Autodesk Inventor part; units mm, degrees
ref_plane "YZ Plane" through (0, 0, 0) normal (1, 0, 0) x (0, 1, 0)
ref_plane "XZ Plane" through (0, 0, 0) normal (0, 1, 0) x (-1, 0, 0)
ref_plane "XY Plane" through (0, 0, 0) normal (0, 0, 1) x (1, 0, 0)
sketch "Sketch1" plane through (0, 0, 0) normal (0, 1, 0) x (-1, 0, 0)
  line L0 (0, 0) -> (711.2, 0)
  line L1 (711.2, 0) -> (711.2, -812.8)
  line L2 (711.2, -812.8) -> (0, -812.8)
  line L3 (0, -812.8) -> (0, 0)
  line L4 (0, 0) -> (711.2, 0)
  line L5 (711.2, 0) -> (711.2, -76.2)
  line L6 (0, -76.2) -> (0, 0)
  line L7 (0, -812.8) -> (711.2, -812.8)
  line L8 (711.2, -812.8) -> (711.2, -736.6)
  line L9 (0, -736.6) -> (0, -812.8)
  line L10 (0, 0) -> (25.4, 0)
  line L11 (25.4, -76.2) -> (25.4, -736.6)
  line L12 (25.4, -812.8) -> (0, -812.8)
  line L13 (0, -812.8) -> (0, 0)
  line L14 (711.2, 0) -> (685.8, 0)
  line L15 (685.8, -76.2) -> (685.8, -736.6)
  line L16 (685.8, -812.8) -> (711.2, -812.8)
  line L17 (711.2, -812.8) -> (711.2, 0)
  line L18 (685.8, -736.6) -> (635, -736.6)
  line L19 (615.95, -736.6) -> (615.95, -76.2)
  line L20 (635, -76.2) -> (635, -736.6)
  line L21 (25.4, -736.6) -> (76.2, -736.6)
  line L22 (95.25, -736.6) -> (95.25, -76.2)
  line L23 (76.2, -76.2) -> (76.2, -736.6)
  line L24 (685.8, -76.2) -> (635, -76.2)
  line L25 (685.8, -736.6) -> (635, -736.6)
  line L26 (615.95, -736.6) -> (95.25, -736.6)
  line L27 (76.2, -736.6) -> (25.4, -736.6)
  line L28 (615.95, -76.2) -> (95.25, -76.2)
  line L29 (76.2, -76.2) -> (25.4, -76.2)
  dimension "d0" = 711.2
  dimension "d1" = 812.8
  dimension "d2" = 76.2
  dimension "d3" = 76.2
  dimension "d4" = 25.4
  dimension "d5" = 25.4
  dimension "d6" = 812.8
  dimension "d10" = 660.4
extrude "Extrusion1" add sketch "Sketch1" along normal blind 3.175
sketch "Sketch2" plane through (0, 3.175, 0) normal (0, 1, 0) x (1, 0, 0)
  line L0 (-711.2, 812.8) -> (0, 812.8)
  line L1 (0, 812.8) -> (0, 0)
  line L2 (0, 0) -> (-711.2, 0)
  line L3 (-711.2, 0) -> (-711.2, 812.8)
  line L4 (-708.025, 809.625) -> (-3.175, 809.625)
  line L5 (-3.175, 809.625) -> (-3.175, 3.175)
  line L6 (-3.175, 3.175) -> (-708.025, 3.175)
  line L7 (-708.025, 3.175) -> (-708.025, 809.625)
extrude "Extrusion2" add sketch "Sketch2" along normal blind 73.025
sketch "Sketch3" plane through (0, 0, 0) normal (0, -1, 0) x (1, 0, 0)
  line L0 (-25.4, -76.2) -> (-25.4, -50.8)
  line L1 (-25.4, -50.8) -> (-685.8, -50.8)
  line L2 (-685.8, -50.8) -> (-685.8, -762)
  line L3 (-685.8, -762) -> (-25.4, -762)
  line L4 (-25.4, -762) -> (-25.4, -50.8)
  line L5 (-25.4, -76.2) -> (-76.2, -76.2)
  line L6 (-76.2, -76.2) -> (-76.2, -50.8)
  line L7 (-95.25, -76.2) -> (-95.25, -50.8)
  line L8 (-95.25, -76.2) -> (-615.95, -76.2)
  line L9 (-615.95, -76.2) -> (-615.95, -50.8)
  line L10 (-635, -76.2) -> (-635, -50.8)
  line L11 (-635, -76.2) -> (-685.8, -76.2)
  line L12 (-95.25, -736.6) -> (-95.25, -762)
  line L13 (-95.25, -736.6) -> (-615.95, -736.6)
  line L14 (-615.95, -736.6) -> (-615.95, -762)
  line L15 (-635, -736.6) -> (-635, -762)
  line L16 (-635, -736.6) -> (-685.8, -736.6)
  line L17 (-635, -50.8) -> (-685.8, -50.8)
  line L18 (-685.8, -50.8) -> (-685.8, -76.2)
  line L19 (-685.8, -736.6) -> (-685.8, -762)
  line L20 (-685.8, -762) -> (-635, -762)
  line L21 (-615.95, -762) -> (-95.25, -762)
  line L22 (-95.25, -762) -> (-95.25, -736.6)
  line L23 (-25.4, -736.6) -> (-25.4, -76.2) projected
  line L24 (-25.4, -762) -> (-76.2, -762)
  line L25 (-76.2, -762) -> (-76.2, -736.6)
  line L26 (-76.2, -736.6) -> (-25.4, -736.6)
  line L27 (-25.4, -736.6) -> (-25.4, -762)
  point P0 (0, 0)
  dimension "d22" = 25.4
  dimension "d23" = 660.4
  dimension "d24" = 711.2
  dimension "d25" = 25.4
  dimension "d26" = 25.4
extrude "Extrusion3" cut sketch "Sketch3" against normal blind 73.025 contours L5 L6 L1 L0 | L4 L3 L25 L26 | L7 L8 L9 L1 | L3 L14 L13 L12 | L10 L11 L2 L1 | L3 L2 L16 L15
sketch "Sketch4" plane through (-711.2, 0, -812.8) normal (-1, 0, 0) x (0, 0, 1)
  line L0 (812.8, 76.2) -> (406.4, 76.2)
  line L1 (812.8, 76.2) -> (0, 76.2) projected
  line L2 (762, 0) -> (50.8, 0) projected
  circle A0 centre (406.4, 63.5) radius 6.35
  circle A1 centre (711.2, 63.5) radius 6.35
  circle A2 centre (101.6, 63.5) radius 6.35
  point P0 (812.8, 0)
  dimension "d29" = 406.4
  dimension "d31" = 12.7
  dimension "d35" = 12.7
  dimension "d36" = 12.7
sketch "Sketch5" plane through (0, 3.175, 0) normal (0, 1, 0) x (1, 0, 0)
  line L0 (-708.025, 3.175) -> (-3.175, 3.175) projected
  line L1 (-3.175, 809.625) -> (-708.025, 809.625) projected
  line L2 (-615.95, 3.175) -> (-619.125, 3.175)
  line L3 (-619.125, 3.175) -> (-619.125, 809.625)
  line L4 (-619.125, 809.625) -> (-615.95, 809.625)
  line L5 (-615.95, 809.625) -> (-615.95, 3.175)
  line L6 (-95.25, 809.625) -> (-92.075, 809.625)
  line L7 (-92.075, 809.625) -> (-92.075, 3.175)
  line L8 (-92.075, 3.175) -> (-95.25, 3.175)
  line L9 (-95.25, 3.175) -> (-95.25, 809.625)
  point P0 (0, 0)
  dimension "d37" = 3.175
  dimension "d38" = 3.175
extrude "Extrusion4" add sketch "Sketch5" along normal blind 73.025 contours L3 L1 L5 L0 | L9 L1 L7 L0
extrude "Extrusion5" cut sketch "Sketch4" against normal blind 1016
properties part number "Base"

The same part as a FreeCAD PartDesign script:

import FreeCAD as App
import Part
import Sketcher

V = App.Vector
Q = App.Units.Quantity


def add_polygon(sketch, points):
    """Adds a closed chain of lines whose ends are joined by coincident constraints."""
    first, n = sketch.GeometryCount, len(points)
    for a, b in zip(points, points[1:] + points[:1]):
        sketch.addGeometry(Part.LineSegment(App.Vector(*a, 0), App.Vector(*b, 0)), False)
    for i in range(n):
        sketch.addConstraint(Sketcher.Constraint("Coincident", first + i, 2, first + (i + 1) % n, 1))

doc = App.newDocument("Part")
body = doc.addObject("PartDesign::Body", "Body")

# Sketch on XZ plane
sketch1 = doc.addObject("Sketcher::SketchObject", "Sketch")
body.addObject(sketch1)
sketch1.AttachmentSupport = (doc.XZ_Plane, [""])
sketch1.MapMode = "FlatFace"
add_polygon(sketch1, [(-711, 0), (0, 0), (0, -813), (-711, -813)])  # lines 0-3
add_polygon(sketch1, [(-25, -737), (-25, -76), (-76, -76), (-76, -737)])  # lines 4-7
add_polygon(sketch1, [(-616, -76), (-616, -737), (-95, -737), (-95, -76)])  # lines 8-11
add_polygon(sketch1, [(-635, -76), (-686, -76), (-686, -737), (-635, -737)])  # lines 12-15
sketch1.addConstraint([
    Sketcher.Constraint("Horizontal", 0),
    Sketcher.Constraint("Vertical", 1),
    Sketcher.Constraint("Horizontal", 2),
    Sketcher.Constraint("Vertical", 3),
    Sketcher.Constraint("Vertical", 4),
    Sketcher.Constraint("Horizontal", 5),
    Sketcher.Constraint("Vertical", 6),
    Sketcher.Constraint("Horizontal", 7),
    Sketcher.Constraint("Vertical", 8),
    Sketcher.Constraint("Horizontal", 9),
    Sketcher.Constraint("Vertical", 10),
    Sketcher.Constraint("Horizontal", 11),
    Sketcher.Constraint("Horizontal", 12),
    Sketcher.Constraint("Vertical", 13),
    Sketcher.Constraint("Horizontal", 14),
    Sketcher.Constraint("Vertical", 15),
    Sketcher.Constraint("Coincident", 0, 2, -1, 1),
    Sketcher.Constraint("Horizontal", 7, 2, 8, 2),
    Sketcher.Constraint("Horizontal", 5, 2, 10, 2),
    Sketcher.Constraint("Horizontal", 11, 2, 12, 2),
    Sketcher.Constraint("Horizontal", 9, 2, 13, 2),
    Sketcher.Constraint("Equal", 7, 12),
    Sketcher.Constraint("DistanceX", 0, 1, 0, 2, Q("28 in")),
    Sketcher.Constraint("DistanceY", 1, 2, 1, 1, Q("32 in")),
    Sketcher.Constraint("DistanceY", 4, 1, 4, 2, Q("26 in")),
    Sketcher.Constraint("DistanceX", 4, 2, -1, 1, Q("1 in")),
    Sketcher.Constraint("DistanceY", 4, 2, -1, 1, Q("3 in")),
    Sketcher.Constraint("DistanceX", 5, 2, -1, 1, Q("3 in")),
    Sketcher.Constraint("DistanceX", 3, 2, 12, 2, Q("1 in")),
    Sketcher.Constraint("DistanceX", 9, 1, 9, 2, Q("20.5 in")),
    Sketcher.Constraint("DistanceX", 8, 2, -1, 1, Q("24.25 in")),
])
pad1 = doc.addObject("PartDesign::Pad", "Pad")
body.addObject(pad1)
pad1.Profile = sketch1
pad1.Length = Q("0.125 in")
pad1.Reversed = True

# Sketch on XZ plane
sketch2 = doc.addObject("Sketcher::SketchObject", "Sketch001")
body.addObject(sketch2)
sketch2.AttachmentSupport = (doc.XZ_Plane, [""])
sketch2.MapMode = "FlatFace"
sketch2.AttachmentOffset = App.Placement(V(0, 0, -0.125 * 25.4), App.Rotation())
add_polygon(sketch2, [(0, -813), (-711, -813), (-711, 0), (0, 0)])  # lines 0-3
add_polygon(sketch2, [(-708, -3), (-708, -810), (-3, -810), (-3, -3)])  # lines 4-7
sketch2.addConstraint([
    Sketcher.Constraint("Horizontal", 0),
    Sketcher.Constraint("Vertical", 1),
    Sketcher.Constraint("Horizontal", 2),
    Sketcher.Constraint("Vertical", 3),
    Sketcher.Constraint("Vertical", 4),
    Sketcher.Constraint("Horizontal", 5),
    Sketcher.Constraint("Vertical", 6),
    Sketcher.Constraint("Horizontal", 7),
    Sketcher.Constraint("Coincident", 2, 2, -1, 1),
    Sketcher.Constraint("DistanceX", 0, 2, 0, 1, Q("28 in")),
    Sketcher.Constraint("DistanceY", 1, 1, 1, 2, Q("32 in")),
    Sketcher.Constraint("DistanceX", 5, 1, 5, 2, Q("27.75 in")),
    Sketcher.Constraint("DistanceY", 4, 2, 4, 1, Q("31.75 in")),
    Sketcher.Constraint("DistanceX", 4, 2, -1, 1, Q("27.875 in")),
    Sketcher.Constraint("DistanceY", 4, 2, -1, 1, Q("31.875 in")),
])
pad2 = doc.addObject("PartDesign::Pad", "Pad001")
body.addObject(pad2)
pad2.Profile = sketch2
pad2.Length = Q("2.875 in")
pad2.Reversed = True

# Sketch on XZ plane
sketch3 = doc.addObject("Sketcher::SketchObject", "Sketch002")
body.addObject(sketch3)
sketch3.AttachmentSupport = (doc.XZ_Plane, [""])
sketch3.MapMode = "FlatFace"
add_polygon(sketch3, [(-76, -76), (-25, -76), (-25, -51), (-76, -51)])  # lines 0-3
add_polygon(sketch3, [(-25, -762), (-25, -737), (-76, -737), (-76, -762)])  # lines 4-7
add_polygon(sketch3, [(-95, -76), (-95, -51), (-616, -51), (-616, -76)])  # lines 8-11
add_polygon(sketch3, [(-616, -762), (-95, -762), (-95, -737), (-616, -737)])  # lines 12-15
add_polygon(sketch3, [(-635, -76), (-635, -51), (-686, -51), (-686, -76)])  # lines 16-19
add_polygon(sketch3, [(-686, -762), (-635, -762), (-635, -737), (-686, -737)])  # lines 20-23
sketch3.addConstraint([
    Sketcher.Constraint("Horizontal", 0),
    Sketcher.Constraint("Vertical", 1),
    Sketcher.Constraint("Horizontal", 2),
    Sketcher.Constraint("Vertical", 3),
    Sketcher.Constraint("Vertical", 4),
    Sketcher.Constraint("Horizontal", 5),
    Sketcher.Constraint("Vertical", 6),
    Sketcher.Constraint("Horizontal", 7),
    Sketcher.Constraint("Vertical", 8),
    Sketcher.Constraint("Horizontal", 9),
    Sketcher.Constraint("Vertical", 10),
    Sketcher.Constraint("Horizontal", 11),
    Sketcher.Constraint("Horizontal", 12),
    Sketcher.Constraint("Vertical", 13),
    Sketcher.Constraint("Horizontal", 14),
    Sketcher.Constraint("Vertical", 15),
    Sketcher.Constraint("Vertical", 16),
    Sketcher.Constraint("Horizontal", 17),
    Sketcher.Constraint("Vertical", 18),
    Sketcher.Constraint("Horizontal", 19),
    Sketcher.Constraint("Horizontal", 20),
    Sketcher.Constraint("Vertical", 21),
    Sketcher.Constraint("Horizontal", 22),
    Sketcher.Constraint("Vertical", 23),
    Sketcher.Constraint("Horizontal", 2, 2, 8, 2),
    Sketcher.Constraint("Horizontal", 3, 2, 10, 2),
    Sketcher.Constraint("Horizontal", 7, 2, 12, 2),
    Sketcher.Constraint("Horizontal", 5, 2, 13, 2),
    Sketcher.Constraint("Horizontal", 9, 2, 16, 2),
    Sketcher.Constraint("Horizontal", 11, 2, 18, 2),
    Sketcher.Constraint("Horizontal", 15, 2, 20, 2),
    Sketcher.Constraint("Horizontal", 14, 2, 21, 2),
    Sketcher.Constraint("Vertical", 1, 2, 4, 2),
    Sketcher.Constraint("Vertical", 3, 2, 5, 2),
    Sketcher.Constraint("Vertical", 11, 2, 12, 2),
    Sketcher.Constraint("Vertical", 10, 2, 14, 2),
    Sketcher.Constraint("Vertical", 19, 2, 20, 2),
    Sketcher.Constraint("Vertical", 18, 2, 22, 2),
    Sketcher.Constraint("Equal", 7, 17),
    Sketcher.Constraint("Equal", 3, 4),
    Sketcher.Constraint("DistanceY", 1, 1, 1, 2, Q("1 in")),
    Sketcher.Constraint("DistanceX", 0, 2, -1, 1, Q("1 in")),
    Sketcher.Constraint("DistanceY", 4, 2, 0, 2, Q("26 in")),
    Sketcher.Constraint("DistanceX", 0, 1, 0, 2, Q("2 in")),
    Sketcher.Constraint("DistanceX", 9, 2, 9, 1, Q("20.5 in")),
    Sketcher.Constraint("DistanceY", 0, 2, -1, 1, Q("3 in")),
    Sketcher.Constraint("DistanceX", 16, 2, -1, 1, Q("25 in")),
    Sketcher.Constraint("DistanceX", 8, 2, -1, 1, Q("3.75 in")),
])
pocket1 = doc.addObject("PartDesign::Pocket", "Pocket")
body.addObject(pocket1)
pocket1.Profile = sketch3
pocket1.Length = Q("2.875 in")

# Sketch on XZ plane
sketch4 = doc.addObject("Sketcher::SketchObject", "Sketch003")
body.addObject(sketch4)
sketch4.AttachmentSupport = (doc.XZ_Plane, [""])
sketch4.MapMode = "FlatFace"
sketch4.AttachmentOffset = App.Placement(V(0, 0, -0.125 * 25.4), App.Rotation())
add_polygon(sketch4, [(-619.1, -809.6), (-619.1, -3.2), (-616, -3.2), (-616, -809.6)])  # lines 0-3
add_polygon(sketch4, [(-95.2, -809.6), (-95.2, -3.2), (-92.1, -3.2), (-92.1, -809.6)])  # lines 4-7
sketch4.addConstraint([
    Sketcher.Constraint("Vertical", 0),
    Sketcher.Constraint("Horizontal", 1),
    Sketcher.Constraint("Vertical", 2),
    Sketcher.Constraint("Horizontal", 3),
    Sketcher.Constraint("Vertical", 4),
    Sketcher.Constraint("Horizontal", 5),
    Sketcher.Constraint("Vertical", 6),
    Sketcher.Constraint("Horizontal", 7),
    Sketcher.Constraint("Horizontal", 1, 2, 4, 2),
    Sketcher.Constraint("Horizontal", 3, 2, 6, 2),
    Sketcher.Constraint("Equal", 3, 5),
    Sketcher.Constraint("DistanceX", 1, 1, 1, 2, Q("0.125 in")),
    Sketcher.Constraint("DistanceY", 0, 2, -1, 1, Q("0.125 in")),
    Sketcher.Constraint("DistanceY", 0, 1, 0, 2, Q("31.75 in")),
    Sketcher.Constraint("DistanceX", 1, 2, 4, 2, Q("20.5 in")),
    Sketcher.Constraint("DistanceX", 1, 2, -1, 1, Q("24.25 in")),
])
pad3 = doc.addObject("PartDesign::Pad", "Pad002")
body.addObject(pad3)
pad3.Profile = sketch4
pad3.Length = Q("2.875 in")
pad3.Reversed = True

# Sketch on YZ plane
sketch5 = doc.addObject("Sketcher::SketchObject", "Sketch004")
body.addObject(sketch5)
sketch5.AttachmentSupport = (doc.YZ_Plane, [""])
sketch5.MapMode = "FlatFace"
sketch5.AttachmentOffset = App.Placement(V(0, 0, -28 * 25.4), App.Rotation())
sketch5.addGeometry([
    Part.Circle(V(64, -406, 0), V(0, 0, 1), 6),
    Part.Circle(V(64, -102, 0), V(0, 0, 1), 6),
    Part.Circle(V(64, -711, 0), V(0, 0, 1), 6),
], False)
sketch5.addConstraint([
    Sketcher.Constraint("Equal", 0, 1),
    Sketcher.Constraint("Equal", 1, 2),
    Sketcher.Constraint("Vertical", 0, 3, 1, 3),
    Sketcher.Constraint("Vertical", 1, 3, 2, 3),
    Sketcher.Constraint("Diameter", 0, Q("0.5 in")),
    Sketcher.Constraint("DistanceY", 0, 3, -1, 1, Q("16 in")),
    Sketcher.Constraint("DistanceY", 1, 3, -1, 1, Q("4 in")),
    Sketcher.Constraint("DistanceY", 2, 3, -1, 1, Q("28 in")),
    Sketcher.Constraint("DistanceX", -1, 1, 0, 3, Q("2.5 in")),
])
pocket2 = doc.addObject("PartDesign::Pocket", "Pocket001")
body.addObject(pocket2)
pocket2.Profile = sketch5
pocket2.Length = Q("40 in")
pocket2.Reversed = True

doc.recompute()
